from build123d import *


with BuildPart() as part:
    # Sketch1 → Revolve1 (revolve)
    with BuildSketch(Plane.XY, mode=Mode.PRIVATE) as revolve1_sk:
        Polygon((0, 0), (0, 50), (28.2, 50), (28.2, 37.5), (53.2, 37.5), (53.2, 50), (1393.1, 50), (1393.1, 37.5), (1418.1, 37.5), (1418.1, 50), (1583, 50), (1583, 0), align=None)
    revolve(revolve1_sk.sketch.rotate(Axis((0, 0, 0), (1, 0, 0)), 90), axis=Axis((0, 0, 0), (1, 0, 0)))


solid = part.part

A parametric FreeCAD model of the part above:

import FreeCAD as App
import Part
import Sketcher

doc = App.newDocument("Part")
params = doc.addObject("Spreadsheet::Sheet", "Params")
for row, (alias, value) in enumerate([
    ("sketch1_width", "1583 mm"),
    ("sketch1_width2", "25 mm"),
    ("sketch1_height", "50 mm"),
    ("sketch1_width3", "164.9 mm"),
    ("sketch1_width4", "1339.9 mm"),
    ("revolution_angle", "360 deg"),
], start=1):
    params.set(f"A{row}", alias)
    params.set(f"B{row}", "=" + value)
    params.setAlias(f"B{row}", alias)

body = doc.addObject("PartDesign::Body", "Body")

# Sketch on XY plane
sketch1 = body.newObject("Sketcher::SketchObject", "Sketch")
sketch1.AttachmentSupport = (doc.getObject("XY_Plane"), [""])
sketch1.MapMode = "FlatFace"
sketch1.addGeometry(Part.LineSegment(App.Vector(0, 50, 0), App.Vector(0, 0, 0)), False)
sketch1.addGeometry(Part.LineSegment(App.Vector(0, 0, 0), App.Vector(1583, 0, 0)), False)
sketch1.addGeometry(Part.LineSegment(App.Vector(1583, 0, 0), App.Vector(1583, 50, 0)), False)
sketch1.addGeometry(Part.LineSegment(App.Vector(1583, 50, 0), App.Vector(1418, 50, 0)), False)
sketch1.addGeometry(Part.LineSegment(App.Vector(1418, 50, 0), App.Vector(1418, 38, 0)), False)
sketch1.addGeometry(Part.LineSegment(App.Vector(1418, 38, 0), App.Vector(1393, 38, 0)), False)
sketch1.addGeometry(Part.LineSegment(App.Vector(1393, 38, 0), App.Vector(1393, 50, 0)), False)
sketch1.addGeometry(Part.LineSegment(App.Vector(1393, 50, 0), App.Vector(53, 50, 0)), False)
sketch1.addGeometry(Part.LineSegment(App.Vector(53, 50, 0), App.Vector(53, 38, 0)), False)
sketch1.addGeometry(Part.LineSegment(App.Vector(53, 38, 0), App.Vector(28, 38, 0)), False)
sketch1.addGeometry(Part.LineSegment(App.Vector(28, 38, 0), App.Vector(28, 50, 0)), False)
sketch1.addGeometry(Part.LineSegment(App.Vector(28, 50, 0), App.Vector(0, 50, 0)), False)
sketch1.addConstraint(Sketcher.Constraint("Coincident", 0, 2, 1, 1))
sketch1.addConstraint(Sketcher.Constraint("Coincident", 1, 2, 2, 1))
sketch1.addConstraint(Sketcher.Constraint("Coincident", 2, 2, 3, 1))
sketch1.addConstraint(Sketcher.Constraint("Coincident", 3, 2, 4, 1))
sketch1.addConstraint(Sketcher.Constraint("Coincident", 4, 2, 5, 1))
sketch1.addConstraint(Sketcher.Constraint("Coincident", 5, 2, 6, 1))
sketch1.addConstraint(Sketcher.Constraint("Coincident", 6, 2, 7, 1))
sketch1.addConstraint(Sketcher.Constraint("Coincident", 7, 2, 8, 1))
sketch1.addConstraint(Sketcher.Constraint("Coincident", 8, 2, 9, 1))
sketch1.addConstraint(Sketcher.Constraint("Coincident", 9, 2, 10, 1))
sketch1.addConstraint(Sketcher.Constraint("Coincident", 10, 2, 11, 1))
sketch1.addConstraint(Sketcher.Constraint("Coincident", 11, 2, 0, 1))
sketch1.addConstraint(Sketcher.Constraint("Vertical", 0))
sketch1.addConstraint(Sketcher.Constraint("Horizontal", 1))
sketch1.addConstraint(Sketcher.Constraint("Vertical", 2))
sketch1.addConstraint(Sketcher.Constraint("Horizontal", 3))
sketch1.addConstraint(Sketcher.Constraint("Vertical", 4))
sketch1.addConstraint(Sketcher.Constraint("Horizontal", 5))
sketch1.addConstraint(Sketcher.Constraint("Vertical", 6))
sketch1.addConstraint(Sketcher.Constraint("Horizontal", 7))
sketch1.addConstraint(Sketcher.Constraint("Vertical", 8))
sketch1.addConstraint(Sketcher.Constraint("Horizontal", 9))
sketch1.addConstraint(Sketcher.Constraint("Vertical", 10))
sketch1.addConstraint(Sketcher.Constraint("Horizontal", 11))
sketch1.addConstraint(Sketcher.Constraint("Coincident", 0, 2, -1, 1))
sketch1.addConstraint(Sketcher.Constraint("Horizontal", 3, 2, 6, 2))
sketch1.addConstraint(Sketcher.Constraint("Horizontal", 5, 2, 8, 2))
sketch1.addConstraint(Sketcher.Constraint("Horizontal", 7, 2, 10, 2))
sketch1.addConstraint(Sketcher.Constraint("Equal", 5, 9))
sketch1.addConstraint(Sketcher.Constraint("DistanceX", 1, 1, 1, 2, 1583.0))
sketch1.addConstraint(Sketcher.Constraint("DistanceX", 5, 2, 5, 1, 25.0))
sketch1.addConstraint(Sketcher.Constraint("DistanceY", 0, 2, 0, 1, 50.0))
sketch1.addConstraint(Sketcher.Constraint("DistanceX", 3, 2, 3, 1, 164.9))
sketch1.addConstraint(Sketcher.Constraint("DistanceX", 7, 2, 7, 1, 1339.9))
sketch1.addConstraint(Sketcher.Constraint("DistanceY", 4, 2, 4, 1, 12.5))
sketch1.setExpression("Constraints[29]", "Params.sketch1_width")
sketch1.setExpression("Constraints[30]", "Params.sketch1_width2")
sketch1.setExpression("Constraints[31]", "Params.sketch1_height")
sketch1.setExpression("Constraints[32]", "Params.sketch1_width3")
sketch1.setExpression("Constraints[33]", "Params.sketch1_width4")
revolution = body.newObject("PartDesign::Revolution", "Revolution")
revolution.Profile = sketch1
revolution.ReferenceAxis = (sketch1, ["H_Axis"])
revolution.setExpression("Angle", "Params.revolution_angle")

doc.recompute()
